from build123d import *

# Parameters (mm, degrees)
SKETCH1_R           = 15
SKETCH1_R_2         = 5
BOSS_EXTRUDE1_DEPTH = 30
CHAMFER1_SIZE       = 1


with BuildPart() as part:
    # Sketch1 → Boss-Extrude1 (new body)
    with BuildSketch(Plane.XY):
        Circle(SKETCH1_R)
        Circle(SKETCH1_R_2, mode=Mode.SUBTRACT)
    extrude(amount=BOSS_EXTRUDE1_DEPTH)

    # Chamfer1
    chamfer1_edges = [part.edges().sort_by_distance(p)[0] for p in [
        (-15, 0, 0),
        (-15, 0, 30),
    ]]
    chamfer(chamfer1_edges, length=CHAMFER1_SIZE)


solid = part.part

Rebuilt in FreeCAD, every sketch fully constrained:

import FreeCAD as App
import Part
import Sketcher
from FreeCAD import Vector
Q = App.Units.Quantity


def edges_at(feature, points):
    """Names of the edges that pass closest to the given points."""
    edges = feature.Shape.Edges
    near = lambda p: min(range(len(edges)), key=lambda i: edges[i].distToShape(Part.Vertex(*p))[0])
    return sorted({f"Edge{near(p) + 1}" for p in points})

doc = App.newDocument("Part")
body = doc.addObject("PartDesign::Body", "Body")

sketch1 = body.newObject("Sketcher::SketchObject", "Sketch")
sketch1.AttachmentSupport = (doc.getObject("XY_Plane"), [""])
sketch1.MapMode = "FlatFace"
sketch1.addGeometry(Part.Circle(Vector(0, 0, 0), Vector(0, 0, 1), 15), False)
sketch1.addGeometry(Part.Circle(Vector(0, 0, 0), Vector(0, 0, 1), 5), False)
sketch1.addConstraint(Sketcher.Constraint("Coincident", 0, 3, -1, 1))
sketch1.addConstraint(Sketcher.Constraint("Coincident", 1, 3, -1, 1))
sketch1.addConstraint(Sketcher.Constraint("Diameter", 0, Q("30 mm")))
sketch1.addConstraint(Sketcher.Constraint("Diameter", 1, Q("10 mm")))
pad1 = body.newObject("PartDesign::Pad", "Pad")
pad1.Profile = sketch1
pad1.Length = 30
doc.recompute()

chamfer = body.newObject("PartDesign::Chamfer", "Chamfer")
chamfer.Base = (pad1, edges_at(pad1, [(-15, 0, 0), (-15, 0, 30)]))
chamfer.Size = 1

doc.recompute()
